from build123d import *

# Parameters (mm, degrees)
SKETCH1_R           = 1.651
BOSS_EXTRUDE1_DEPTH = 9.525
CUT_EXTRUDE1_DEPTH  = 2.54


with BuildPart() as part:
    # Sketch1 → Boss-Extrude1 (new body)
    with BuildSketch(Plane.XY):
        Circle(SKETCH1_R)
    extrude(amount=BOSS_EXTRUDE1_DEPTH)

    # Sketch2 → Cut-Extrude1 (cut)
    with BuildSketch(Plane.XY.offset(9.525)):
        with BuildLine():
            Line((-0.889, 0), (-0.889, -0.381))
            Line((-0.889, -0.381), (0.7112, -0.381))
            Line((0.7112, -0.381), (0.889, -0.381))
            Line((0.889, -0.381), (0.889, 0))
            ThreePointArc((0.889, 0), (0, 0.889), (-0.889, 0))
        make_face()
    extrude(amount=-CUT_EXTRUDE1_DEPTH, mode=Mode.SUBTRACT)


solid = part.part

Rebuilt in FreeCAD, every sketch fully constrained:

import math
import FreeCAD as App
import Part
import Sketcher
Q = App.Units.Quantity

doc = App.newDocument("Part")
body = doc.addObject("PartDesign::Body", "Body")

sketch1 = body.newObject("Sketcher::SketchObject", "Sketch")
sketch1.AttachmentSupport = (doc.getObject("XY_Plane"), [""])
sketch1.MapMode = "FlatFace"
sketch1.addGeometry(Part.Circle(App.Vector(0, 0, 0), App.Vector(0, 0, 1), 1.7), False)
sketch1.addConstraint([
    Sketcher.Constraint("Coincident", 0, 3, -1, 1),
    Sketcher.Constraint("Diameter", 0, Q("0.13 in")),
])
pad1 = body.newObject("PartDesign::Pad", "Pad")
pad1.Profile = sketch1
pad1.Length = Q("0.375 in")

sketch2 = body.newObject("Sketcher::SketchObject", "Sketch001")
sketch2.AttachmentSupport = (doc.getObject("XY_Plane"), [""])
sketch2.MapMode = "FlatFace"
sketch2.AttachmentOffset = App.Placement(App.Vector(0, 0, 0.375 * 25.4), App.Rotation())
sketch2.addGeometry([
    Part.LineSegment(App.Vector(-0.89, 0, 0), App.Vector(-0.89, -0.38, 0)),
    Part.LineSegment(App.Vector(-0.89, -0.38, 0), App.Vector(0.89, -0.38, 0)),
    Part.LineSegment(App.Vector(0.89, -0.38, 0), App.Vector(0.89, 0, 0)),
    Part.ArcOfCircle(Part.Circle(App.Vector(0, 0, 0), App.Vector(0, 0, 1), 0.89), math.radians(0), math.radians(180)),
], False)
sketch2.addConstraint([
    Sketcher.Constraint("Coincident", 0, 2, 1, 1),
    Sketcher.Constraint("Coincident", 1, 2, 2, 1),
    Sketcher.Constraint("Tangent", 2, 2, 3, 1),
    Sketcher.Constraint("Tangent", 3, 2, 0, 1),
    Sketcher.Constraint("Vertical", 0),
    Sketcher.Constraint("Horizontal", 1),
    Sketcher.Constraint("Vertical", 2),
    Sketcher.Constraint("Coincident", 3, 3, -1, 1),
    Sketcher.Constraint("Radius", 3, Q("0.035 in")),
    Sketcher.Constraint("DistanceY", 0, 2, 0, 1, Q("0.015 in")),
])
pocket1 = body.newObject("PartDesign::Pocket", "Pocket")
pocket1.Profile = sketch2
pocket1.Length = Q("0.1 in")

doc.recompute()
